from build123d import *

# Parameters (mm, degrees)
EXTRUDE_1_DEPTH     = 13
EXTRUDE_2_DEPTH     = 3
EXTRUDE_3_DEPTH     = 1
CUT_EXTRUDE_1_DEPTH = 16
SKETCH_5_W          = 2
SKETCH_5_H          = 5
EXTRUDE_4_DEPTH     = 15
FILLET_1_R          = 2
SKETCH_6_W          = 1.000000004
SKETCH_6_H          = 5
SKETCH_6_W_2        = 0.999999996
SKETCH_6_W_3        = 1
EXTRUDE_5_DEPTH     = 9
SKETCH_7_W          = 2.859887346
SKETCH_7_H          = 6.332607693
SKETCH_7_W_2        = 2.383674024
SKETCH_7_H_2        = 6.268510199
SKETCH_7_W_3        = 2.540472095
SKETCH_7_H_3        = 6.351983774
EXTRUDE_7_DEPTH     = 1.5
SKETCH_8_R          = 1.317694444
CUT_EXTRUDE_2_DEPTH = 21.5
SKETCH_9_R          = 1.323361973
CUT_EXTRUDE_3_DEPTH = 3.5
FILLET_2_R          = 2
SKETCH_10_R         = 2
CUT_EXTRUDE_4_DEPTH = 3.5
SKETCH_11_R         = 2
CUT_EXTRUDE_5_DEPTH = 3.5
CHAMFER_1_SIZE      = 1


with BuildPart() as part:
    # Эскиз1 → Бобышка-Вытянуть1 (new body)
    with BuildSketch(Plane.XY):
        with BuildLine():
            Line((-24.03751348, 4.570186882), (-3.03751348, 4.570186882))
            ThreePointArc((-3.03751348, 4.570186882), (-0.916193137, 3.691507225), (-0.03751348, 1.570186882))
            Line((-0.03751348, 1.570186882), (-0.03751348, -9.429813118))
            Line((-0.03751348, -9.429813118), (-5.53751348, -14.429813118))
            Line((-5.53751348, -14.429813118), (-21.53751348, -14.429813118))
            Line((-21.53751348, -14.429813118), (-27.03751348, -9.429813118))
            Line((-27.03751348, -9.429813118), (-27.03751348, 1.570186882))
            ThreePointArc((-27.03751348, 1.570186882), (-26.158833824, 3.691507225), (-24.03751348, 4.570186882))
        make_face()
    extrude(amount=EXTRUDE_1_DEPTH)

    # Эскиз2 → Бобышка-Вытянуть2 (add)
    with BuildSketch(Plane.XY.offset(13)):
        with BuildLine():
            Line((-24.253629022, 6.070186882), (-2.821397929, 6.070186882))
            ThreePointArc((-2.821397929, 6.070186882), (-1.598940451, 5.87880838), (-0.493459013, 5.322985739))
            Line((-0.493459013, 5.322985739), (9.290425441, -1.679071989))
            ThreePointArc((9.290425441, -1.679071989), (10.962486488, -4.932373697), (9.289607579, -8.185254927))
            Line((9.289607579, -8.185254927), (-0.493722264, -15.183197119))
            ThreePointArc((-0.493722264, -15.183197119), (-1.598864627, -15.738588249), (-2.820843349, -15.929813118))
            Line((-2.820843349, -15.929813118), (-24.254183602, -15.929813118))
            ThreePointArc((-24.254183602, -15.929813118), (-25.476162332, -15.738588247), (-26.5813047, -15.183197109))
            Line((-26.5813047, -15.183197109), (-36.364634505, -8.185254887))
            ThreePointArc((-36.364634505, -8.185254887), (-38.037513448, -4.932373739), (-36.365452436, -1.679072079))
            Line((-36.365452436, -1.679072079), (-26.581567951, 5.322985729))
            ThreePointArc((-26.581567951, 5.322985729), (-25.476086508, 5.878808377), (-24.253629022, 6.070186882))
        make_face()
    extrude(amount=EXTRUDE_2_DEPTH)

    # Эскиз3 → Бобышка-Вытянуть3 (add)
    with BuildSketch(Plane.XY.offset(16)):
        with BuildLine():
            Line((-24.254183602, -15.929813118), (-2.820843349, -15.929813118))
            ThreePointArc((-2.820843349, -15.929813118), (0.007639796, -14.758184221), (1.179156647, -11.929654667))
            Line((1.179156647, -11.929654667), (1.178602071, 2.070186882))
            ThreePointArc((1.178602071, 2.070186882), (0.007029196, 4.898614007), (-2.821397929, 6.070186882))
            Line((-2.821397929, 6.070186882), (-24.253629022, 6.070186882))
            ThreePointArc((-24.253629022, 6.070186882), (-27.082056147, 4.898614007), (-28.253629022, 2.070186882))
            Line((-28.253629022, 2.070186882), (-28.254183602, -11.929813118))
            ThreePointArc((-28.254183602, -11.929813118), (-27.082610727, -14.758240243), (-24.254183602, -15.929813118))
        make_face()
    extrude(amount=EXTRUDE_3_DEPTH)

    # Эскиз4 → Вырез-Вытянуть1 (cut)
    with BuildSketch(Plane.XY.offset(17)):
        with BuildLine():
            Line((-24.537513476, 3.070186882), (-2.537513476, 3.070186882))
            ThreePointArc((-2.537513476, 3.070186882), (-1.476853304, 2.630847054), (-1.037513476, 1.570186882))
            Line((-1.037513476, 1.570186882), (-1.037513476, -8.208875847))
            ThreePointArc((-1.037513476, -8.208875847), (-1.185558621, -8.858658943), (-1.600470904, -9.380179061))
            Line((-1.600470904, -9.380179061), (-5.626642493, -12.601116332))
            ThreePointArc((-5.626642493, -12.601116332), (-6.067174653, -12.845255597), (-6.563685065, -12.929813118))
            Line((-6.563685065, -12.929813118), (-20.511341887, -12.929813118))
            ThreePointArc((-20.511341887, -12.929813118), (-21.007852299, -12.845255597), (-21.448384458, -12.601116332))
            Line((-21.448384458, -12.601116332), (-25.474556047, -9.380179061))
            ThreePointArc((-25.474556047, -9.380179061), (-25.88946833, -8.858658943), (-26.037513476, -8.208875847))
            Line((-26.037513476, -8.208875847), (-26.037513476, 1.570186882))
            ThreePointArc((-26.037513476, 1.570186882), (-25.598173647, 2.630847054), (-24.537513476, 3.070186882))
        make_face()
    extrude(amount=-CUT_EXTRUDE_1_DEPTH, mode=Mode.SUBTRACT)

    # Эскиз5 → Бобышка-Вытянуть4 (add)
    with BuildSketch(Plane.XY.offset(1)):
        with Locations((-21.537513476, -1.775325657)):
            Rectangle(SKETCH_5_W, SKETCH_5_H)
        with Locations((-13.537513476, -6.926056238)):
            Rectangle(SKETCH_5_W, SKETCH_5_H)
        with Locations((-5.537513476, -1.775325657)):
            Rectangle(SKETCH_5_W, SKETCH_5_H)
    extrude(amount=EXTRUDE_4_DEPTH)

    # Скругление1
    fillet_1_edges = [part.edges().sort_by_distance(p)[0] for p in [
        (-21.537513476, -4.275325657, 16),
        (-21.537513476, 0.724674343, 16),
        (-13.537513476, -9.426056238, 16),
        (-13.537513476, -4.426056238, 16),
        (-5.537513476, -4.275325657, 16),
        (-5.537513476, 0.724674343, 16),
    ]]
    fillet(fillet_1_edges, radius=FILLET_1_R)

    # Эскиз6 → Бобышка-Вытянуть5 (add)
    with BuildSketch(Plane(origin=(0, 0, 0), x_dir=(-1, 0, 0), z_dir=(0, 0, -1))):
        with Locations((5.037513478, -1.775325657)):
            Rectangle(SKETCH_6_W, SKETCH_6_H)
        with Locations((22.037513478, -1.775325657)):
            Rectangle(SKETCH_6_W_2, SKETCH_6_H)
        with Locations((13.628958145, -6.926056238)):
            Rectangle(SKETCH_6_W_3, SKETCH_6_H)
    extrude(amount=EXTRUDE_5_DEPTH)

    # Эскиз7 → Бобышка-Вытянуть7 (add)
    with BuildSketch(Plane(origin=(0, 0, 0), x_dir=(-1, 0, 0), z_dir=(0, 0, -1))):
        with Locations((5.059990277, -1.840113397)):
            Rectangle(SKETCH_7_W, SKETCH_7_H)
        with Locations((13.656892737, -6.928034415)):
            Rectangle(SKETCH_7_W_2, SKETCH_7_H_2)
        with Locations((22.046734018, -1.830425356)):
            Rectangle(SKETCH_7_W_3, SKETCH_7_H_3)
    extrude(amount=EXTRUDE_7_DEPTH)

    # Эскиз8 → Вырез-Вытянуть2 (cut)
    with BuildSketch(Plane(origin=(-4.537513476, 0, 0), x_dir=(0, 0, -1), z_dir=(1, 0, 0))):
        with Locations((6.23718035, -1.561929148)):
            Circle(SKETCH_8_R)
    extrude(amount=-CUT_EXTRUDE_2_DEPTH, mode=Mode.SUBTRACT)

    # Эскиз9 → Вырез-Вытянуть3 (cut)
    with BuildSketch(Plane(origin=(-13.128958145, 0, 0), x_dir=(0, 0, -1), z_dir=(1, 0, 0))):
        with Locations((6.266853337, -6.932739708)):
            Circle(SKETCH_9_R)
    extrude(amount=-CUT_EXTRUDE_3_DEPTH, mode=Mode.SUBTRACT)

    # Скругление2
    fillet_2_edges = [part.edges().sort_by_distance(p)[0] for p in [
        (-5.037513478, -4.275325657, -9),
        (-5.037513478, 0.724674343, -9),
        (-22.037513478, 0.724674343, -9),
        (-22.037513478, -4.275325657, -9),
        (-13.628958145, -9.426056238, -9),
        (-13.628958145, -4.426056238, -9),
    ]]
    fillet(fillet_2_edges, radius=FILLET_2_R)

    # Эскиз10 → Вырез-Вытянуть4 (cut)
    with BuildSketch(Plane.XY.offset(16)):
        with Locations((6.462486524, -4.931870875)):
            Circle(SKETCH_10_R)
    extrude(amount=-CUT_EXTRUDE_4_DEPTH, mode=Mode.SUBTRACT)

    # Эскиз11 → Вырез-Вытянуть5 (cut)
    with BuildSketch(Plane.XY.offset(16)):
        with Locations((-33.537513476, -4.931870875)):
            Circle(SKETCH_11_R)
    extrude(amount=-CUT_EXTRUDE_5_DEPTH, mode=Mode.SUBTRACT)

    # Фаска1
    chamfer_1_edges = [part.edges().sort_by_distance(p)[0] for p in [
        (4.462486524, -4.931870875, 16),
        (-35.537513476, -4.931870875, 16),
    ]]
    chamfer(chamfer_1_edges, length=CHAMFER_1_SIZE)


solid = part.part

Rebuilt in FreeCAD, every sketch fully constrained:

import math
import FreeCAD as App
import Part
import Sketcher
from FreeCAD import Vector


def edges_at(feature, points):
    """Names of the edges that pass closest to the given points."""
    edges = feature.Shape.Edges
    near = lambda p: min(range(len(edges)), key=lambda i: edges[i].distToShape(Part.Vertex(*p))[0])
    return sorted({f"Edge{near(p) + 1}" for p in points})


def add_polygon(sketch, points):
    """Adds a closed chain of lines whose ends are joined by coincident constraints."""
    first, n = sketch.GeometryCount, len(points)
    for a, b in zip(points, points[1:] + points[:1]):
        sketch.addGeometry(Part.LineSegment(App.Vector(*a, 0), App.Vector(*b, 0)), False)
    for i in range(n):
        sketch.addConstraint(Sketcher.Constraint("Coincident", first + i, 2, first + (i + 1) % n, 1))

doc = App.newDocument("Part")
body = doc.addObject("PartDesign::Body", "Body")

# Sketch on XY plane
sketch1 = doc.addObject("Sketcher::SketchObject", "Sketch")
body.addObject(sketch1)
sketch1.AttachmentSupport = (doc.XY_Plane, [""])
sketch1.MapMode = "FlatFace"
sketch1.addGeometry(Part.LineSegment(Vector(-3, 4.6, 0), Vector(-24, 4.6, 0)), False)
sketch1.addGeometry(Part.ArcOfCircle(Part.Circle(Vector(-24, 1.6, 0), Vector(0, 0, 1), 3), math.radians(90), math.radians(180)), False)
sketch1.addGeometry(Part.LineSegment(Vector(-27, 1.6, 0), Vector(-27, -9.4, 0)), False)
sketch1.addGeometry(Part.LineSegment(Vector(-27, -9.4, 0), Vector(-21.5, -14.4, 0)), False)
sketch1.addGeometry(Part.LineSegment(Vector(-21.5, -14.4, 0), Vector(-5.5, -14.4, 0)), False)
sketch1.addGeometry(Part.LineSegment(Vector(-5.5, -14.4, 0), Vector(0, -9.4, 0)), False)
sketch1.addGeometry(Part.LineSegment(Vector(0, -9.4, 0), Vector(0, 1.6, 0)), False)
sketch1.addGeometry(Part.ArcOfCircle(Part.Circle(Vector(-3, 1.6, 0), Vector(0, 0, 1), 3), math.radians(0), math.radians(90)), False)
sketch1.addConstraint(Sketcher.Constraint("Tangent", 0, 2, 1, 1))
sketch1.addConstraint(Sketcher.Constraint("Tangent", 1, 2, 2, 1))
sketch1.addConstraint(Sketcher.Constraint("Coincident", 2, 2, 3, 1))
sketch1.addConstraint(Sketcher.Constraint("Coincident", 3, 2, 4, 1))
sketch1.addConstraint(Sketcher.Constraint("Coincident", 4, 2, 5, 1))
sketch1.addConstraint(Sketcher.Constraint("Coincident", 5, 2, 6, 1))
sketch1.addConstraint(Sketcher.Constraint("Tangent", 6, 2, 7, 1))
sketch1.addConstraint(Sketcher.Constraint("Tangent", 7, 2, 0, 1))
sketch1.addConstraint(Sketcher.Constraint("Horizontal", 0))
sketch1.addConstraint(Sketcher.Constraint("Vertical", 2))
sketch1.addConstraint(Sketcher.Constraint("Horizontal", 4))
sketch1.addConstraint(Sketcher.Constraint("Vertical", 6))
sketch1.addConstraint(Sketcher.Constraint("Equal", 1, 7))
sketch1.addConstraint(Sketcher.Constraint("Horizontal", 2, 2, 5, 2))
sketch1.addConstraint(Sketcher.Constraint("Equal", 3, 5))
sketch1.addConstraint(Sketcher.Constraint("Radius", 1, 3.0))
sketch1.addConstraint(Sketcher.Constraint("DistanceX", 0, 2, 0, 1, 21.0))
sketch1.addConstraint(Sketcher.Constraint("DistanceX", 4, 1, 4, 2, 16.0))
sketch1.addConstraint(Sketcher.Constraint("DistanceY", 2, 2, 2, 1, 11.0))
sketch1.addConstraint(Sketcher.Constraint("DistanceY", 3, 2, 2, 2, 5.0))
sketch1.addConstraint(Sketcher.Constraint("DistanceX", 1, 3, -1, 1, 24.037513))
sketch1.addConstraint(Sketcher.Constraint("DistanceY", -1, 1, 1, 3, 1.570187))
pad1 = doc.addObject("PartDesign::Pad", "Pad")
body.addObject(pad1)
pad1.Profile = sketch1
pad1.Length = 13

# Sketch on XY plane
sketch2 = doc.addObject("Sketcher::SketchObject", "Sketch001")
body.addObject(sketch2)
sketch2.AttachmentSupport = (doc.XY_Plane, [""])
sketch2.MapMode = "FlatFace"
sketch2.AttachmentOffset = App.Placement(Vector(0, 0, 13), App.Rotation())
sketch2.addGeometry(Part.LineSegment(Vector(-2.8, 6.1, 0), Vector(-24.3, 6.1, 0)), False)
sketch2.addGeometry(Part.ArcOfCircle(Part.Circle(Vector(-24.3, 2.1, 0), Vector(0, 0, 1), 4), math.radians(90), math.radians(126)), False)
sketch2.addGeometry(Part.LineSegment(Vector(-26.6, 5.3, 0), Vector(-36.4, -1.7, 0)), False)
sketch2.addGeometry(Part.ArcOfCircle(Part.Circle(Vector(-34, -4.9, 0), Vector(0, 0, 1), 4), math.radians(126), math.radians(234)), False)
sketch2.addGeometry(Part.LineSegment(Vector(-36.4, -8.2, 0), Vector(-26.6, -15.2, 0)), False)
sketch2.addGeometry(Part.ArcOfCircle(Part.Circle(Vector(-24.3, -11.9, 0), Vector(0, 0, 1), 4), math.radians(-126), math.radians(-90)), False)
sketch2.addGeometry(Part.LineSegment(Vector(-24.3, -15.9, 0), Vector(-2.8, -15.9, 0)), False)
sketch2.addGeometry(Part.ArcOfCircle(Part.Circle(Vector(-2.8, -11.9, 0), Vector(0, 0, 1), 4), math.radians(-90), math.radians(-54)), False)
sketch2.addGeometry(Part.LineSegment(Vector(-0.5, -15.2, 0), Vector(9.3, -8.2, 0)), False)
sketch2.addGeometry(Part.ArcOfCircle(Part.Circle(Vector(7, -4.9, 0), Vector(0, 0, 1), 4), math.radians(-54), math.radians(54)), False)
sketch2.addGeometry(Part.LineSegment(Vector(9.3, -1.7, 0), Vector(-0.5, 5.3, 0)), False)
sketch2.addGeometry(Part.ArcOfCircle(Part.Circle(Vector(-2.8, 2.1, 0), Vector(0, 0, 1), 4), math.radians(54), math.radians(90)), False)
sketch2.addConstraint(Sketcher.Constraint("Tangent", 0, 2, 1, 1))
sketch2.addConstraint(Sketcher.Constraint("Tangent", 1, 2, 2, 1))
sketch2.addConstraint(Sketcher.Constraint("Tangent", 2, 2, 3, 1))
sketch2.addConstraint(Sketcher.Constraint("Tangent", 3, 2, 4, 1))
sketch2.addConstraint(Sketcher.Constraint("Tangent", 4, 2, 5, 1))
sketch2.addConstraint(Sketcher.Constraint("Tangent", 5, 2, 6, 1))
sketch2.addConstraint(Sketcher.Constraint("Tangent", 6, 2, 7, 1))
sketch2.addConstraint(Sketcher.Constraint("Tangent", 7, 2, 8, 1))
sketch2.addConstraint(Sketcher.Constraint("Tangent", 8, 2, 9, 1))
sketch2.addConstraint(Sketcher.Constraint("Tangent", 9, 2, 10, 1))
sketch2.addConstraint(Sketcher.Constraint("Tangent", 10, 2, 11, 1))
sketch2.addConstraint(Sketcher.Constraint("Tangent", 11, 2, 0, 1))
sketch2.addConstraint(Sketcher.Constraint("Horizontal", 0))
sketch2.addConstraint(Sketcher.Constraint("Horizontal", 6))
sketch2.addConstraint(Sketcher.Constraint("Equal", 1, 3))
sketch2.addConstraint(Sketcher.Constraint("Equal", 3, 5))
sketch2.addConstraint(Sketcher.Constraint("Equal", 5, 7))
sketch2.addConstraint(Sketcher.Constraint("Equal", 7, 9))
sketch2.addConstraint(Sketcher.Constraint("Equal", 9, 11))
sketch2.addConstraint(Sketcher.Constraint("Horizontal", 3, 3, 9, 3))
sketch2.addConstraint(Sketcher.Constraint("Horizontal", 4, 2, 7, 2))
sketch2.addConstraint(Sketcher.Constraint("Horizontal", 2, 2, 9, 2))
sketch2.addConstraint(Sketcher.Constraint("Radius", 1, 4.0))
sketch2.addConstraint(Sketcher.Constraint("DistanceY", 5, 3, 1, 3, 14.0))
sketch2.addConstraint(Sketcher.Constraint("DistanceX", 3, 3, 9, 3, 41.0))
sketch2.addConstraint(Sketcher.Constraint("DistanceX", 0, 2, 0, 1, 21.432231))
sketch2.addConstraint(Sketcher.Constraint("DistanceX", 6, 1, 6, 2, 21.43334))
sketch2.addConstraint(Sketcher.Constraint("DistanceY", 1, 2, 0, 2, 0.747201))
sketch2.addConstraint(Sketcher.Constraint("DistanceX", 1, 3, -1, 1, 24.253629))
sketch2.addConstraint(Sketcher.Constraint("DistanceY", 3, 3, -1, 1, 4.931871))
pad2 = doc.addObject("PartDesign::Pad", "Pad001")
body.addObject(pad2)
pad2.Profile = sketch2
pad2.Length = 3

# Sketch on XY plane
sketch3 = doc.addObject("Sketcher::SketchObject", "Sketch002")
body.addObject(sketch3)
sketch3.AttachmentSupport = (doc.XY_Plane, [""])
sketch3.MapMode = "FlatFace"
sketch3.AttachmentOffset = App.Placement(Vector(0, 0, 16), App.Rotation())
sketch3.addGeometry(Part.LineSegment(Vector(-24.3, -15.9, 0), Vector(-2.8, -15.9, 0)), False)
sketch3.addGeometry(Part.ArcOfCircle(Part.Circle(Vector(-2.8, -11.9, 0), Vector(0, 0, 1), 4), math.radians(-90), math.radians(0)), False)
sketch3.addGeometry(Part.LineSegment(Vector(1.2, -11.9, 0), Vector(1.2, 2.1, 0)), False)
sketch3.addGeometry(Part.ArcOfCircle(Part.Circle(Vector(-2.8, 2.1, 0), Vector(0, 0, 1), 4), math.radians(0), math.radians(90)), False)
sketch3.addGeometry(Part.LineSegment(Vector(-2.8, 6.1, 0), Vector(-24.3, 6.1, 0)), False)
sketch3.addGeometry(Part.ArcOfCircle(Part.Circle(Vector(-24.3, 2.1, 0), Vector(0, 0, 1), 4), math.radians(90), math.radians(180)), False)
sketch3.addGeometry(Part.LineSegment(Vector(-28.3, 2.1, 0), Vector(-28.3, -11.9, 0)), False)
sketch3.addGeometry(Part.ArcOfCircle(Part.Circle(Vector(-24.3, -11.9, 0), Vector(0, 0, 1), 4), math.radians(180), math.radians(270)), False)
sketch3.addConstraint(Sketcher.Constraint("Tangent", 0, 2, 1, 1))
sketch3.addConstraint(Sketcher.Constraint("Tangent", 1, 2, 2, 1))
sketch3.addConstraint(Sketcher.Constraint("Coincident", 2, 2, 3, 1))
sketch3.addConstraint(Sketcher.Constraint("Tangent", 3, 2, 4, 1))
sketch3.addConstraint(Sketcher.Constraint("Tangent", 4, 2, 5, 1))
sketch3.addConstraint(Sketcher.Constraint("Coincident", 5, 2, 6, 1))
sketch3.addConstraint(Sketcher.Constraint("Coincident", 6, 2, 7, 1))
sketch3.addConstraint(Sketcher.Constraint("Tangent", 7, 2, 0, 1))
sketch3.addConstraint(Sketcher.Constraint("Horizontal", 0))
sketch3.addConstraint(Sketcher.Constraint("Horizontal", 4))
sketch3.addConstraint(Sketcher.Constraint("Equal", 1, 3))
sketch3.addConstraint(Sketcher.Constraint("Equal", 3, 5))
sketch3.addConstraint(Sketcher.Constraint("Equal", 5, 7))
sketch3.addConstraint(Sketcher.Constraint("Horizontal", 5, 3, 2, 2))
sketch3.addConstraint(Sketcher.Constraint("Horizontal", 2, 2, 5, 2))
sketch3.addConstraint(Sketcher.Constraint("Horizontal", 7, 3, 6, 2))
sketch3.addConstraint(Sketcher.Constraint("Radius", 1, 4.0))
sketch3.addConstraint(Sketcher.Constraint("Distance", 6, 14.0))
sketch3.addConstraint(Sketcher.Constraint("DistanceX", 0, 1, 0, 2, 21.43334))
sketch3.addConstraint(Sketcher.Constraint("DistanceX", 4, 2, 4, 1, 21.432231))
sketch3.addConstraint(Sketcher.Constraint("Distance", 2, 13.999842))
sketch3.addConstraint(Sketcher.Constraint("DistanceX", 5, 3, -1, 1, 24.253629))
sketch3.addConstraint(Sketcher.Constraint("DistanceY", 1, 3, -1, 1, 11.929813))
pad3 = doc.addObject("PartDesign::Pad", "Pad002")
body.addObject(pad3)
pad3.Profile = sketch3
pad3.Length = 1

# Sketch on XY plane
sketch4 = doc.addObject("Sketcher::SketchObject", "Sketch003")
body.addObject(sketch4)
sketch4.AttachmentSupport = (doc.XY_Plane, [""])
sketch4.MapMode = "FlatFace"
sketch4.AttachmentOffset = App.Placement(Vector(0, 0, 17), App.Rotation())
sketch4.addGeometry(Part.LineSegment(Vector(-2.5, 3.1, 0), Vector(-24.5, 3.1, 0)), False)
sketch4.addGeometry(Part.ArcOfCircle(Part.Circle(Vector(-24.5, 1.6, 0), Vector(0, 0, 1), 1.5), math.radians(90), math.radians(180)), False)
sketch4.addGeometry(Part.LineSegment(Vector(-26, 1.6, 0), Vector(-26, -8.2, 0)), False)
sketch4.addGeometry(Part.ArcOfCircle(Part.Circle(Vector(-24.5, -8.2, 0), Vector(0, 0, 1), 1.5), math.radians(-180), math.radians(-129)), False)
sketch4.addGeometry(Part.LineSegment(Vector(-25.5, -9.4, 0), Vector(-21.4, -12.6, 0)), False)
sketch4.addGeometry(Part.ArcOfCircle(Part.Circle(Vector(-20.5, -11.4, 0), Vector(0, 0, 1), 1.5), math.radians(-129), math.radians(-90)), False)
sketch4.addGeometry(Part.LineSegment(Vector(-20.5, -12.9, 0), Vector(-6.6, -12.9, 0)), False)
sketch4.addGeometry(Part.ArcOfCircle(Part.Circle(Vector(-6.6, -11.4, 0), Vector(0, 0, 1), 1.5), math.radians(-90), math.radians(-51)), False)
sketch4.addGeometry(Part.LineSegment(Vector(-5.6, -12.6, 0), Vector(-1.6, -9.4, 0)), False)
sketch4.addGeometry(Part.ArcOfCircle(Part.Circle(Vector(-2.5, -8.2, 0), Vector(0, 0, 1), 1.5), math.radians(-51), math.radians(0)), False)
sketch4.addGeometry(Part.LineSegment(Vector(-1, -8.2, 0), Vector(-1, 1.6, 0)), False)
sketch4.addGeometry(Part.ArcOfCircle(Part.Circle(Vector(-2.5, 1.6, 0), Vector(0, 0, 1), 1.5), math.radians(0), math.radians(90)), False)
sketch4.addConstraint(Sketcher.Constraint("Tangent", 0, 2, 1, 1))
sketch4.addConstraint(Sketcher.Constraint("Tangent", 1, 2, 2, 1))
sketch4.addConstraint(Sketcher.Constraint("Tangent", 2, 2, 3, 1))
sketch4.addConstraint(Sketcher.Constraint("Tangent", 3, 2, 4, 1))
sketch4.addConstraint(Sketcher.Constraint("Tangent", 4, 2, 5, 1))
sketch4.addConstraint(Sketcher.Constraint("Tangent", 5, 2, 6, 1))
sketch4.addConstraint(Sketcher.Constraint("Tangent", 6, 2, 7, 1))
sketch4.addConstraint(Sketcher.Constraint("Tangent", 7, 2, 8, 1))
sketch4.addConstraint(Sketcher.Constraint("Tangent", 8, 2, 9, 1))
sketch4.addConstraint(Sketcher.Constraint("Tangent", 9, 2, 10, 1))
sketch4.addConstraint(Sketcher.Constraint("Tangent", 10, 2, 11, 1))
sketch4.addConstraint(Sketcher.Constraint("Tangent", 11, 2, 0, 1))
sketch4.addConstraint(Sketcher.Constraint("Horizontal", 0))
sketch4.addConstraint(Sketcher.Constraint("Vertical", 2))
sketch4.addConstraint(Sketcher.Constraint("Horizontal", 6))
sketch4.addConstraint(Sketcher.Constraint("Vertical", 10))
sketch4.addConstraint(Sketcher.Constraint("Equal", 1, 3))
sketch4.addConstraint(Sketcher.Constraint("Equal", 3, 5))
sketch4.addConstraint(Sketcher.Constraint("Equal", 5, 7))
sketch4.addConstraint(Sketcher.Constraint("Equal", 7, 9))
sketch4.addConstraint(Sketcher.Constraint("Equal", 9, 11))
sketch4.addConstraint(Sketcher.Constraint("Horizontal", 3, 3, 9, 3))
sketch4.addConstraint(Sketcher.Constraint("Horizontal", 4, 2, 7, 2))
sketch4.addConstraint(Sketcher.Constraint("Radius", 1, 1.5))
sketch4.addConstraint(Sketcher.Constraint("DistanceX", 0, 2, 0, 1, 22.0))
sketch4.addConstraint(Sketcher.Constraint("DistanceY", 5, 3, 1, 3, 13.0))
sketch4.addConstraint(Sketcher.Constraint("DistanceX", 4, 2, 6, 2, 14.884699))
sketch4.addConstraint(Sketcher.Constraint("DistanceX", 6, 1, 6, 2, 13.947657))
sketch4.addConstraint(Sketcher.Constraint("DistanceX", 5, 3, -1, 1, 20.511342))
sketch4.addConstraint(Sketcher.Constraint("DistanceY", 3, 2, -1, 1, 9.380179))
pocket1 = doc.addObject("PartDesign::Pocket", "Pocket")
body.addObject(pocket1)
pocket1.Profile = sketch4
pocket1.Length = 16

# Sketch on XY plane
sketch5 = doc.addObject("Sketcher::SketchObject", "Sketch004")
body.addObject(sketch5)
sketch5.AttachmentSupport = (doc.XY_Plane, [""])
sketch5.MapMode = "FlatFace"
sketch5.AttachmentOffset = App.Placement(Vector(0, 0, 1), App.Rotation())
add_polygon(sketch5, [(-22.5, 0.7), (-22.5, -4.3), (-20.5, -4.3), (-20.5, 0.7)])  # lines 0-3
add_polygon(sketch5, [(-14.5, -4.4), (-14.5, -9.4), (-12.5, -9.4), (-12.5, -4.4)])  # lines 4-7
add_polygon(sketch5, [(-6.5, 0.7), (-6.5, -4.3), (-4.5, -4.3), (-4.5, 0.7)])  # lines 8-11
sketch5.addConstraint(Sketcher.Constraint("Vertical", 0))
sketch5.addConstraint(Sketcher.Constraint("Horizontal", 1))
sketch5.addConstraint(Sketcher.Constraint("Vertical", 2))
sketch5.addConstraint(Sketcher.Constraint("Horizontal", 3))
sketch5.addConstraint(Sketcher.Constraint("Vertical", 4))
sketch5.addConstraint(Sketcher.Constraint("Horizontal", 5))
sketch5.addConstraint(Sketcher.Constraint("Vertical", 6))
sketch5.addConstraint(Sketcher.Constraint("Horizontal", 7))
sketch5.addConstraint(Sketcher.Constraint("Vertical", 8))
sketch5.addConstraint(Sketcher.Constraint("Horizontal", 9))
sketch5.addConstraint(Sketcher.Constraint("Vertical", 10))
sketch5.addConstraint(Sketcher.Constraint("Horizontal", 11))
sketch5.addConstraint(Sketcher.Constraint("Horizontal", 1, 2, 8, 2))
sketch5.addConstraint(Sketcher.Constraint("Horizontal", 3, 2, 10, 2))
sketch5.addConstraint(Sketcher.Constraint("Equal", 3, 5))
sketch5.addConstraint(Sketcher.Constraint("Equal", 7, 9))
sketch5.addConstraint(Sketcher.Constraint("Equal", 2, 4))
sketch5.addConstraint(Sketcher.Constraint("DistanceX", 1, 1, 1, 2, 2.0))
sketch5.addConstraint(Sketcher.Constraint("DistanceY", 0, 2, 0, 1, 5.0))
sketch5.addConstraint(Sketcher.Constraint("DistanceX", 1, 2, 4, 2, 6.0))
sketch5.addConstraint(Sketcher.Constraint("DistanceX", 6, 2, 8, 2, 6.0))
sketch5.addConstraint(Sketcher.Constraint("DistanceY", 4, 2, 1, 2, 5.150731))
sketch5.addConstraint(Sketcher.Constraint("DistanceX", 0, 2, -1, 1, 22.537513))
sketch5.addConstraint(Sketcher.Constraint("DistanceY", 0, 2, -1, 1, 4.275326))
pad4 = doc.addObject("PartDesign::Pad", "Pad003")
body.addObject(pad4)
pad4.Profile = sketch5
pad4.Length = 15
doc.recompute()

fillet = doc.addObject("PartDesign::Fillet", "Fillet")
body.addObject(fillet)
fillet.Base = (pad4, edges_at(pad4, [
    (-21.538, -4.275, 16),
    (-21.538, 0.725, 16),
    (-13.538, -9.426, 16),
    (-13.538, -4.426, 16),
    (-5.538, -4.275, 16),
    (-5.538, 0.725, 16),
]))
fillet.Radius = 2

# Sketch on XY plane
sketch6 = doc.addObject("Sketcher::SketchObject", "Sketch005")
body.addObject(sketch6)
sketch6.AttachmentSupport = (doc.XY_Plane, [""])
sketch6.MapMode = "FlatFace"
add_polygon(sketch6, [(-4.5, 0.7), (-4.5, -4.3), (-5.5, -4.3), (-5.5, 0.7)])  # lines 0-3
add_polygon(sketch6, [(-21.5, 0.7), (-21.5, -4.3), (-22.5, -4.3), (-22.5, 0.7)])  # lines 4-7
add_polygon(sketch6, [(-13.1, -4.4), (-13.1, -9.4), (-14.1, -9.4), (-14.1, -4.4)])  # lines 8-11
sketch6.addConstraint(Sketcher.Constraint("Vertical", 0))
sketch6.addConstraint(Sketcher.Constraint("Horizontal", 1))
sketch6.addConstraint(Sketcher.Constraint("Vertical", 2))
sketch6.addConstraint(Sketcher.Constraint("Horizontal", 3))
sketch6.addConstraint(Sketcher.Constraint("Vertical", 4))
sketch6.addConstraint(Sketcher.Constraint("Horizontal", 5))
sketch6.addConstraint(Sketcher.Constraint("Vertical", 6))
sketch6.addConstraint(Sketcher.Constraint("Horizontal", 7))
sketch6.addConstraint(Sketcher.Constraint("Vertical", 8))
sketch6.addConstraint(Sketcher.Constraint("Horizontal", 9))
sketch6.addConstraint(Sketcher.Constraint("Vertical", 10))
sketch6.addConstraint(Sketcher.Constraint("Horizontal", 11))
sketch6.addConstraint(Sketcher.Constraint("Horizontal", 1, 2, 4, 2))
sketch6.addConstraint(Sketcher.Constraint("Horizontal", 3, 2, 6, 2))
sketch6.addConstraint(Sketcher.Constraint("Equal", 3, 5))
sketch6.addConstraint(Sketcher.Constraint("Equal", 7, 9))
sketch6.addConstraint(Sketcher.Constraint("Equal", 6, 8))
sketch6.addConstraint(Sketcher.Constraint("DistanceX", 1, 2, 1, 1, 1.0))
sketch6.addConstraint(Sketcher.Constraint("DistanceY", 0, 2, 0, 1, 5.0))
sketch6.addConstraint(Sketcher.Constraint("DistanceX", 4, 2, 1, 2, 16.0))
sketch6.addConstraint(Sketcher.Constraint("DistanceX", 8, 2, -1, 1, 13.128958))
sketch6.addConstraint(Sketcher.Constraint("DistanceY", 8, 2, 1, 2, 5.150731))
sketch6.addConstraint(Sketcher.Constraint("DistanceX", 0, 2, -1, 1, 4.537513))
sketch6.addConstraint(Sketcher.Constraint("DistanceY", 0, 2, -1, 1, 4.275326))
pad5 = doc.addObject("PartDesign::Pad", "Pad004")
body.addObject(pad5)
pad5.Profile = sketch6
pad5.Length = 9
pad5.Reversed = True

# Sketch on XY plane
sketch7 = doc.addObject("Sketcher::SketchObject", "Sketch006")
body.addObject(sketch7)
sketch7.AttachmentSupport = (doc.XY_Plane, [""])
sketch7.MapMode = "FlatFace"
add_polygon(sketch7, [(-3.6, 1.3), (-3.6, -5), (-6.5, -5), (-6.5, 1.3)])  # lines 0-3
add_polygon(sketch7, [(-12.5, -3.8), (-12.5, -10.1), (-14.8, -10.1), (-14.8, -3.8)])  # lines 4-7
add_polygon(sketch7, [(-20.8, 1.3), (-20.8, -5), (-23.3, -5), (-23.3, 1.3)])  # lines 8-11
sketch7.addConstraint(Sketcher.Constraint("Vertical", 0))
sketch7.addConstraint(Sketcher.Constraint("Horizontal", 1))
sketch7.addConstraint(Sketcher.Constraint("Vertical", 2))
sketch7.addConstraint(Sketcher.Constraint("Horizontal", 3))
sketch7.addConstraint(Sketcher.Constraint("Vertical", 4))
sketch7.addConstraint(Sketcher.Constraint("Horizontal", 5))
sketch7.addConstraint(Sketcher.Constraint("Vertical", 6))
sketch7.addConstraint(Sketcher.Constraint("Horizontal", 7))
sketch7.addConstraint(Sketcher.Constraint("Vertical", 8))
sketch7.addConstraint(Sketcher.Constraint("Horizontal", 9))
sketch7.addConstraint(Sketcher.Constraint("Vertical", 10))
sketch7.addConstraint(Sketcher.Constraint("Horizontal", 11))
sketch7.addConstraint(Sketcher.Constraint("Horizontal", 1, 2, 8, 2))
sketch7.addConstraint(Sketcher.Constraint("DistanceY", 4, 2, 4, 1, 6.26851))
sketch7.addConstraint(Sketcher.Constraint("DistanceX", 1, 2, 1, 1, 2.859887))
sketch7.addConstraint(Sketcher.Constraint("DistanceX", 5, 2, 5, 1, 2.383674))
sketch7.addConstraint(Sketcher.Constraint("DistanceX", 9, 2, 9, 1, 2.540472))
sketch7.addConstraint(Sketcher.Constraint("DistanceY", 0, 2, 0, 1, 6.332608))
sketch7.addConstraint(Sketcher.Constraint("DistanceY", 8, 2, 8, 1, 6.351984))
sketch7.addConstraint(Sketcher.Constraint("DistanceY", -1, 1, 2, 2, 1.32619))
sketch7.addConstraint(Sketcher.Constraint("DistanceY", 4, 2, -1, 1, 10.06229))
sketch7.addConstraint(Sketcher.Constraint("DistanceX", 5, 2, -1, 1, 14.84873))
sketch7.addConstraint(Sketcher.Constraint("DistanceX", 9, 2, -1, 1, 23.31697))
sketch7.addConstraint(Sketcher.Constraint("DistanceX", 4, 2, 1, 2, 5.975122))
pad6 = doc.addObject("PartDesign::Pad", "Pad005")
body.addObject(pad6)
pad6.Profile = sketch7
pad6.Length = 1.5
pad6.Reversed = True

# Sketch on YZ plane
sketch8 = doc.addObject("Sketcher::SketchObject", "Sketch007")
body.addObject(sketch8)
sketch8.AttachmentSupport = (doc.YZ_Plane, [""])
sketch8.MapMode = "FlatFace"
sketch8.AttachmentOffset = App.Placement(Vector(0, 0, -4.537513), App.Rotation())
sketch8.addGeometry(Part.Circle(Vector(-1.6, -6.2, 0), Vector(0, 0, 1), 1.3), False)
sketch8.addConstraint(Sketcher.Constraint("Diameter", 0, 2.635389))
sketch8.addConstraint(Sketcher.Constraint("DistanceX", 0, 3, -1, 1, 1.561929))
sketch8.addConstraint(Sketcher.Constraint("DistanceY", 0, 3, -1, 1, 6.23718))
pocket2 = doc.addObject("PartDesign::Pocket", "Pocket001")
body.addObject(pocket2)
pocket2.Profile = sketch8
pocket2.Length = 21.5

# Sketch on YZ plane
sketch9 = doc.addObject("Sketcher::SketchObject", "Sketch008")
body.addObject(sketch9)
sketch9.AttachmentSupport = (doc.YZ_Plane, [""])
sketch9.MapMode = "FlatFace"
sketch9.AttachmentOffset = App.Placement(Vector(0, 0, -13.128958), App.Rotation())
sketch9.addGeometry(Part.Circle(Vector(-6.9, -6.3, 0), Vector(0, 0, 1), 1.3), False)
sketch9.addConstraint(Sketcher.Constraint("Diameter", 0, 2.646724))
sketch9.addConstraint(Sketcher.Constraint("DistanceX", 0, 3, -1, 1, 6.93274))
sketch9.addConstraint(Sketcher.Constraint("DistanceY", 0, 3, -1, 1, 6.266853))
pocket3 = doc.addObject("PartDesign::Pocket", "Pocket002")
body.addObject(pocket3)
pocket3.Profile = sketch9
pocket3.Length = 3.5
doc.recompute()

fillet2 = doc.addObject("PartDesign::Fillet", "Fillet001")
body.addObject(fillet2)
fillet2.Base = (pocket3, edges_at(pocket3, [
    (-5.038, -4.275, -9),
    (-5.038, 0.725, -9),
    (-22.038, 0.725, -9),
    (-22.038, -4.275, -9),
    (-13.629, -9.426, -9),
    (-13.629, -4.426, -9),
]))
fillet2.Radius = 2

# Sketch on XY plane
sketch10 = doc.addObject("Sketcher::SketchObject", "Sketch009")
body.addObject(sketch10)
sketch10.AttachmentSupport = (doc.XY_Plane, [""])
sketch10.MapMode = "FlatFace"
sketch10.AttachmentOffset = App.Placement(Vector(0, 0, 16), App.Rotation())
sketch10.addGeometry(Part.Circle(Vector(6.5, -4.9, 0), Vector(0, 0, 1), 2), False)
sketch10.addConstraint(Sketcher.Constraint("Diameter", 0, 4.0))
sketch10.addConstraint(Sketcher.Constraint("DistanceY", 0, 3, -1, 1, 4.931871))
sketch10.addConstraint(Sketcher.Constraint("DistanceX", -1, 1, 0, 3, 6.462487))
pocket4 = doc.addObject("PartDesign::Pocket", "Pocket003")
body.addObject(pocket4)
pocket4.Profile = sketch10
pocket4.Length = 3.5

# Sketch on XY plane
sketch11 = doc.addObject("Sketcher::SketchObject", "Sketch010")
body.addObject(sketch11)
sketch11.AttachmentSupport = (doc.XY_Plane, [""])
sketch11.MapMode = "FlatFace"
sketch11.AttachmentOffset = App.Placement(Vector(0, 0, 16), App.Rotation())
sketch11.addGeometry(Part.Circle(Vector(-33.5, -4.9, 0), Vector(0, 0, 1), 2), False)
sketch11.addConstraint(Sketcher.Constraint("Diameter", 0, 4.0))
sketch11.addConstraint(Sketcher.Constraint("DistanceY", 0, 3, -1, 1, 4.931871))
sketch11.addConstraint(Sketcher.Constraint("DistanceX", 0, 3, -1, 1, 33.537513))
pocket5 = doc.addObject("PartDesign::Pocket", "Pocket004")
body.addObject(pocket5)
pocket5.Profile = sketch11
pocket5.Length = 3.5
doc.recompute()

chamfer = doc.addObject("PartDesign::Chamfer", "Chamfer")
body.addObject(chamfer)
chamfer.Base = (pocket5, edges_at(pocket5, [(4.462, -4.932, 16), (-35.538, -4.932, 16)]))
chamfer.Size = 1

doc.recompute()
